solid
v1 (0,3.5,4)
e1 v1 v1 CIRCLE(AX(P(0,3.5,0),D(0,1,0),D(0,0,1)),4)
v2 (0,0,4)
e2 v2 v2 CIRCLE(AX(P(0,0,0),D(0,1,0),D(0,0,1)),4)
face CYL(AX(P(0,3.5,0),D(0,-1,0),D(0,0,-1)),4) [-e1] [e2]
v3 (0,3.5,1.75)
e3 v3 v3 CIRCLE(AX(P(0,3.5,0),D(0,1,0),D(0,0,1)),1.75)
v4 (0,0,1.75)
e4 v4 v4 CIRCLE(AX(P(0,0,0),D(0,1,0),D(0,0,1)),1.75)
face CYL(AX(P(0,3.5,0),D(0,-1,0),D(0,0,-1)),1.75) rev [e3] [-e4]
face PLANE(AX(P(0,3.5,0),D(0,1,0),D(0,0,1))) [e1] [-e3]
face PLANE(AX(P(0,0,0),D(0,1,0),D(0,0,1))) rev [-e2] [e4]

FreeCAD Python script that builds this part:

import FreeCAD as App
import Part
import Sketcher
Q = App.Units.Quantity

doc = App.newDocument("Part")
body = doc.addObject("PartDesign::Body", "Body")

# Sketch on XZ plane
sketch1 = body.newObject("Sketcher::SketchObject", "Sketch")
sketch1.AttachmentSupport = (doc.getObject("XZ_Plane"), [""])
sketch1.MapMode = "FlatFace"
sketch1.addGeometry([
    Part.Circle(App.Vector(0, 0, 0), App.Vector(0, 0, 1), 4),
    Part.Circle(App.Vector(0, 0, 0), App.Vector(0, 0, 1), 1.8),
], False)
sketch1.addConstraint([
    Sketcher.Constraint("Coincident", 0, 3, -1, 1),
    Sketcher.Constraint("Coincident", 1, 3, -1, 1),
    Sketcher.Constraint("Diameter", 0, Q("8 mm")),
    Sketcher.Constraint("Diameter", 1, Q("3.5 mm")),
])
pad1 = body.newObject("PartDesign::Pad", "Pad")
pad1.Profile = sketch1
pad1.Length = 3.5
pad1.Reversed = True

doc.recompute()
